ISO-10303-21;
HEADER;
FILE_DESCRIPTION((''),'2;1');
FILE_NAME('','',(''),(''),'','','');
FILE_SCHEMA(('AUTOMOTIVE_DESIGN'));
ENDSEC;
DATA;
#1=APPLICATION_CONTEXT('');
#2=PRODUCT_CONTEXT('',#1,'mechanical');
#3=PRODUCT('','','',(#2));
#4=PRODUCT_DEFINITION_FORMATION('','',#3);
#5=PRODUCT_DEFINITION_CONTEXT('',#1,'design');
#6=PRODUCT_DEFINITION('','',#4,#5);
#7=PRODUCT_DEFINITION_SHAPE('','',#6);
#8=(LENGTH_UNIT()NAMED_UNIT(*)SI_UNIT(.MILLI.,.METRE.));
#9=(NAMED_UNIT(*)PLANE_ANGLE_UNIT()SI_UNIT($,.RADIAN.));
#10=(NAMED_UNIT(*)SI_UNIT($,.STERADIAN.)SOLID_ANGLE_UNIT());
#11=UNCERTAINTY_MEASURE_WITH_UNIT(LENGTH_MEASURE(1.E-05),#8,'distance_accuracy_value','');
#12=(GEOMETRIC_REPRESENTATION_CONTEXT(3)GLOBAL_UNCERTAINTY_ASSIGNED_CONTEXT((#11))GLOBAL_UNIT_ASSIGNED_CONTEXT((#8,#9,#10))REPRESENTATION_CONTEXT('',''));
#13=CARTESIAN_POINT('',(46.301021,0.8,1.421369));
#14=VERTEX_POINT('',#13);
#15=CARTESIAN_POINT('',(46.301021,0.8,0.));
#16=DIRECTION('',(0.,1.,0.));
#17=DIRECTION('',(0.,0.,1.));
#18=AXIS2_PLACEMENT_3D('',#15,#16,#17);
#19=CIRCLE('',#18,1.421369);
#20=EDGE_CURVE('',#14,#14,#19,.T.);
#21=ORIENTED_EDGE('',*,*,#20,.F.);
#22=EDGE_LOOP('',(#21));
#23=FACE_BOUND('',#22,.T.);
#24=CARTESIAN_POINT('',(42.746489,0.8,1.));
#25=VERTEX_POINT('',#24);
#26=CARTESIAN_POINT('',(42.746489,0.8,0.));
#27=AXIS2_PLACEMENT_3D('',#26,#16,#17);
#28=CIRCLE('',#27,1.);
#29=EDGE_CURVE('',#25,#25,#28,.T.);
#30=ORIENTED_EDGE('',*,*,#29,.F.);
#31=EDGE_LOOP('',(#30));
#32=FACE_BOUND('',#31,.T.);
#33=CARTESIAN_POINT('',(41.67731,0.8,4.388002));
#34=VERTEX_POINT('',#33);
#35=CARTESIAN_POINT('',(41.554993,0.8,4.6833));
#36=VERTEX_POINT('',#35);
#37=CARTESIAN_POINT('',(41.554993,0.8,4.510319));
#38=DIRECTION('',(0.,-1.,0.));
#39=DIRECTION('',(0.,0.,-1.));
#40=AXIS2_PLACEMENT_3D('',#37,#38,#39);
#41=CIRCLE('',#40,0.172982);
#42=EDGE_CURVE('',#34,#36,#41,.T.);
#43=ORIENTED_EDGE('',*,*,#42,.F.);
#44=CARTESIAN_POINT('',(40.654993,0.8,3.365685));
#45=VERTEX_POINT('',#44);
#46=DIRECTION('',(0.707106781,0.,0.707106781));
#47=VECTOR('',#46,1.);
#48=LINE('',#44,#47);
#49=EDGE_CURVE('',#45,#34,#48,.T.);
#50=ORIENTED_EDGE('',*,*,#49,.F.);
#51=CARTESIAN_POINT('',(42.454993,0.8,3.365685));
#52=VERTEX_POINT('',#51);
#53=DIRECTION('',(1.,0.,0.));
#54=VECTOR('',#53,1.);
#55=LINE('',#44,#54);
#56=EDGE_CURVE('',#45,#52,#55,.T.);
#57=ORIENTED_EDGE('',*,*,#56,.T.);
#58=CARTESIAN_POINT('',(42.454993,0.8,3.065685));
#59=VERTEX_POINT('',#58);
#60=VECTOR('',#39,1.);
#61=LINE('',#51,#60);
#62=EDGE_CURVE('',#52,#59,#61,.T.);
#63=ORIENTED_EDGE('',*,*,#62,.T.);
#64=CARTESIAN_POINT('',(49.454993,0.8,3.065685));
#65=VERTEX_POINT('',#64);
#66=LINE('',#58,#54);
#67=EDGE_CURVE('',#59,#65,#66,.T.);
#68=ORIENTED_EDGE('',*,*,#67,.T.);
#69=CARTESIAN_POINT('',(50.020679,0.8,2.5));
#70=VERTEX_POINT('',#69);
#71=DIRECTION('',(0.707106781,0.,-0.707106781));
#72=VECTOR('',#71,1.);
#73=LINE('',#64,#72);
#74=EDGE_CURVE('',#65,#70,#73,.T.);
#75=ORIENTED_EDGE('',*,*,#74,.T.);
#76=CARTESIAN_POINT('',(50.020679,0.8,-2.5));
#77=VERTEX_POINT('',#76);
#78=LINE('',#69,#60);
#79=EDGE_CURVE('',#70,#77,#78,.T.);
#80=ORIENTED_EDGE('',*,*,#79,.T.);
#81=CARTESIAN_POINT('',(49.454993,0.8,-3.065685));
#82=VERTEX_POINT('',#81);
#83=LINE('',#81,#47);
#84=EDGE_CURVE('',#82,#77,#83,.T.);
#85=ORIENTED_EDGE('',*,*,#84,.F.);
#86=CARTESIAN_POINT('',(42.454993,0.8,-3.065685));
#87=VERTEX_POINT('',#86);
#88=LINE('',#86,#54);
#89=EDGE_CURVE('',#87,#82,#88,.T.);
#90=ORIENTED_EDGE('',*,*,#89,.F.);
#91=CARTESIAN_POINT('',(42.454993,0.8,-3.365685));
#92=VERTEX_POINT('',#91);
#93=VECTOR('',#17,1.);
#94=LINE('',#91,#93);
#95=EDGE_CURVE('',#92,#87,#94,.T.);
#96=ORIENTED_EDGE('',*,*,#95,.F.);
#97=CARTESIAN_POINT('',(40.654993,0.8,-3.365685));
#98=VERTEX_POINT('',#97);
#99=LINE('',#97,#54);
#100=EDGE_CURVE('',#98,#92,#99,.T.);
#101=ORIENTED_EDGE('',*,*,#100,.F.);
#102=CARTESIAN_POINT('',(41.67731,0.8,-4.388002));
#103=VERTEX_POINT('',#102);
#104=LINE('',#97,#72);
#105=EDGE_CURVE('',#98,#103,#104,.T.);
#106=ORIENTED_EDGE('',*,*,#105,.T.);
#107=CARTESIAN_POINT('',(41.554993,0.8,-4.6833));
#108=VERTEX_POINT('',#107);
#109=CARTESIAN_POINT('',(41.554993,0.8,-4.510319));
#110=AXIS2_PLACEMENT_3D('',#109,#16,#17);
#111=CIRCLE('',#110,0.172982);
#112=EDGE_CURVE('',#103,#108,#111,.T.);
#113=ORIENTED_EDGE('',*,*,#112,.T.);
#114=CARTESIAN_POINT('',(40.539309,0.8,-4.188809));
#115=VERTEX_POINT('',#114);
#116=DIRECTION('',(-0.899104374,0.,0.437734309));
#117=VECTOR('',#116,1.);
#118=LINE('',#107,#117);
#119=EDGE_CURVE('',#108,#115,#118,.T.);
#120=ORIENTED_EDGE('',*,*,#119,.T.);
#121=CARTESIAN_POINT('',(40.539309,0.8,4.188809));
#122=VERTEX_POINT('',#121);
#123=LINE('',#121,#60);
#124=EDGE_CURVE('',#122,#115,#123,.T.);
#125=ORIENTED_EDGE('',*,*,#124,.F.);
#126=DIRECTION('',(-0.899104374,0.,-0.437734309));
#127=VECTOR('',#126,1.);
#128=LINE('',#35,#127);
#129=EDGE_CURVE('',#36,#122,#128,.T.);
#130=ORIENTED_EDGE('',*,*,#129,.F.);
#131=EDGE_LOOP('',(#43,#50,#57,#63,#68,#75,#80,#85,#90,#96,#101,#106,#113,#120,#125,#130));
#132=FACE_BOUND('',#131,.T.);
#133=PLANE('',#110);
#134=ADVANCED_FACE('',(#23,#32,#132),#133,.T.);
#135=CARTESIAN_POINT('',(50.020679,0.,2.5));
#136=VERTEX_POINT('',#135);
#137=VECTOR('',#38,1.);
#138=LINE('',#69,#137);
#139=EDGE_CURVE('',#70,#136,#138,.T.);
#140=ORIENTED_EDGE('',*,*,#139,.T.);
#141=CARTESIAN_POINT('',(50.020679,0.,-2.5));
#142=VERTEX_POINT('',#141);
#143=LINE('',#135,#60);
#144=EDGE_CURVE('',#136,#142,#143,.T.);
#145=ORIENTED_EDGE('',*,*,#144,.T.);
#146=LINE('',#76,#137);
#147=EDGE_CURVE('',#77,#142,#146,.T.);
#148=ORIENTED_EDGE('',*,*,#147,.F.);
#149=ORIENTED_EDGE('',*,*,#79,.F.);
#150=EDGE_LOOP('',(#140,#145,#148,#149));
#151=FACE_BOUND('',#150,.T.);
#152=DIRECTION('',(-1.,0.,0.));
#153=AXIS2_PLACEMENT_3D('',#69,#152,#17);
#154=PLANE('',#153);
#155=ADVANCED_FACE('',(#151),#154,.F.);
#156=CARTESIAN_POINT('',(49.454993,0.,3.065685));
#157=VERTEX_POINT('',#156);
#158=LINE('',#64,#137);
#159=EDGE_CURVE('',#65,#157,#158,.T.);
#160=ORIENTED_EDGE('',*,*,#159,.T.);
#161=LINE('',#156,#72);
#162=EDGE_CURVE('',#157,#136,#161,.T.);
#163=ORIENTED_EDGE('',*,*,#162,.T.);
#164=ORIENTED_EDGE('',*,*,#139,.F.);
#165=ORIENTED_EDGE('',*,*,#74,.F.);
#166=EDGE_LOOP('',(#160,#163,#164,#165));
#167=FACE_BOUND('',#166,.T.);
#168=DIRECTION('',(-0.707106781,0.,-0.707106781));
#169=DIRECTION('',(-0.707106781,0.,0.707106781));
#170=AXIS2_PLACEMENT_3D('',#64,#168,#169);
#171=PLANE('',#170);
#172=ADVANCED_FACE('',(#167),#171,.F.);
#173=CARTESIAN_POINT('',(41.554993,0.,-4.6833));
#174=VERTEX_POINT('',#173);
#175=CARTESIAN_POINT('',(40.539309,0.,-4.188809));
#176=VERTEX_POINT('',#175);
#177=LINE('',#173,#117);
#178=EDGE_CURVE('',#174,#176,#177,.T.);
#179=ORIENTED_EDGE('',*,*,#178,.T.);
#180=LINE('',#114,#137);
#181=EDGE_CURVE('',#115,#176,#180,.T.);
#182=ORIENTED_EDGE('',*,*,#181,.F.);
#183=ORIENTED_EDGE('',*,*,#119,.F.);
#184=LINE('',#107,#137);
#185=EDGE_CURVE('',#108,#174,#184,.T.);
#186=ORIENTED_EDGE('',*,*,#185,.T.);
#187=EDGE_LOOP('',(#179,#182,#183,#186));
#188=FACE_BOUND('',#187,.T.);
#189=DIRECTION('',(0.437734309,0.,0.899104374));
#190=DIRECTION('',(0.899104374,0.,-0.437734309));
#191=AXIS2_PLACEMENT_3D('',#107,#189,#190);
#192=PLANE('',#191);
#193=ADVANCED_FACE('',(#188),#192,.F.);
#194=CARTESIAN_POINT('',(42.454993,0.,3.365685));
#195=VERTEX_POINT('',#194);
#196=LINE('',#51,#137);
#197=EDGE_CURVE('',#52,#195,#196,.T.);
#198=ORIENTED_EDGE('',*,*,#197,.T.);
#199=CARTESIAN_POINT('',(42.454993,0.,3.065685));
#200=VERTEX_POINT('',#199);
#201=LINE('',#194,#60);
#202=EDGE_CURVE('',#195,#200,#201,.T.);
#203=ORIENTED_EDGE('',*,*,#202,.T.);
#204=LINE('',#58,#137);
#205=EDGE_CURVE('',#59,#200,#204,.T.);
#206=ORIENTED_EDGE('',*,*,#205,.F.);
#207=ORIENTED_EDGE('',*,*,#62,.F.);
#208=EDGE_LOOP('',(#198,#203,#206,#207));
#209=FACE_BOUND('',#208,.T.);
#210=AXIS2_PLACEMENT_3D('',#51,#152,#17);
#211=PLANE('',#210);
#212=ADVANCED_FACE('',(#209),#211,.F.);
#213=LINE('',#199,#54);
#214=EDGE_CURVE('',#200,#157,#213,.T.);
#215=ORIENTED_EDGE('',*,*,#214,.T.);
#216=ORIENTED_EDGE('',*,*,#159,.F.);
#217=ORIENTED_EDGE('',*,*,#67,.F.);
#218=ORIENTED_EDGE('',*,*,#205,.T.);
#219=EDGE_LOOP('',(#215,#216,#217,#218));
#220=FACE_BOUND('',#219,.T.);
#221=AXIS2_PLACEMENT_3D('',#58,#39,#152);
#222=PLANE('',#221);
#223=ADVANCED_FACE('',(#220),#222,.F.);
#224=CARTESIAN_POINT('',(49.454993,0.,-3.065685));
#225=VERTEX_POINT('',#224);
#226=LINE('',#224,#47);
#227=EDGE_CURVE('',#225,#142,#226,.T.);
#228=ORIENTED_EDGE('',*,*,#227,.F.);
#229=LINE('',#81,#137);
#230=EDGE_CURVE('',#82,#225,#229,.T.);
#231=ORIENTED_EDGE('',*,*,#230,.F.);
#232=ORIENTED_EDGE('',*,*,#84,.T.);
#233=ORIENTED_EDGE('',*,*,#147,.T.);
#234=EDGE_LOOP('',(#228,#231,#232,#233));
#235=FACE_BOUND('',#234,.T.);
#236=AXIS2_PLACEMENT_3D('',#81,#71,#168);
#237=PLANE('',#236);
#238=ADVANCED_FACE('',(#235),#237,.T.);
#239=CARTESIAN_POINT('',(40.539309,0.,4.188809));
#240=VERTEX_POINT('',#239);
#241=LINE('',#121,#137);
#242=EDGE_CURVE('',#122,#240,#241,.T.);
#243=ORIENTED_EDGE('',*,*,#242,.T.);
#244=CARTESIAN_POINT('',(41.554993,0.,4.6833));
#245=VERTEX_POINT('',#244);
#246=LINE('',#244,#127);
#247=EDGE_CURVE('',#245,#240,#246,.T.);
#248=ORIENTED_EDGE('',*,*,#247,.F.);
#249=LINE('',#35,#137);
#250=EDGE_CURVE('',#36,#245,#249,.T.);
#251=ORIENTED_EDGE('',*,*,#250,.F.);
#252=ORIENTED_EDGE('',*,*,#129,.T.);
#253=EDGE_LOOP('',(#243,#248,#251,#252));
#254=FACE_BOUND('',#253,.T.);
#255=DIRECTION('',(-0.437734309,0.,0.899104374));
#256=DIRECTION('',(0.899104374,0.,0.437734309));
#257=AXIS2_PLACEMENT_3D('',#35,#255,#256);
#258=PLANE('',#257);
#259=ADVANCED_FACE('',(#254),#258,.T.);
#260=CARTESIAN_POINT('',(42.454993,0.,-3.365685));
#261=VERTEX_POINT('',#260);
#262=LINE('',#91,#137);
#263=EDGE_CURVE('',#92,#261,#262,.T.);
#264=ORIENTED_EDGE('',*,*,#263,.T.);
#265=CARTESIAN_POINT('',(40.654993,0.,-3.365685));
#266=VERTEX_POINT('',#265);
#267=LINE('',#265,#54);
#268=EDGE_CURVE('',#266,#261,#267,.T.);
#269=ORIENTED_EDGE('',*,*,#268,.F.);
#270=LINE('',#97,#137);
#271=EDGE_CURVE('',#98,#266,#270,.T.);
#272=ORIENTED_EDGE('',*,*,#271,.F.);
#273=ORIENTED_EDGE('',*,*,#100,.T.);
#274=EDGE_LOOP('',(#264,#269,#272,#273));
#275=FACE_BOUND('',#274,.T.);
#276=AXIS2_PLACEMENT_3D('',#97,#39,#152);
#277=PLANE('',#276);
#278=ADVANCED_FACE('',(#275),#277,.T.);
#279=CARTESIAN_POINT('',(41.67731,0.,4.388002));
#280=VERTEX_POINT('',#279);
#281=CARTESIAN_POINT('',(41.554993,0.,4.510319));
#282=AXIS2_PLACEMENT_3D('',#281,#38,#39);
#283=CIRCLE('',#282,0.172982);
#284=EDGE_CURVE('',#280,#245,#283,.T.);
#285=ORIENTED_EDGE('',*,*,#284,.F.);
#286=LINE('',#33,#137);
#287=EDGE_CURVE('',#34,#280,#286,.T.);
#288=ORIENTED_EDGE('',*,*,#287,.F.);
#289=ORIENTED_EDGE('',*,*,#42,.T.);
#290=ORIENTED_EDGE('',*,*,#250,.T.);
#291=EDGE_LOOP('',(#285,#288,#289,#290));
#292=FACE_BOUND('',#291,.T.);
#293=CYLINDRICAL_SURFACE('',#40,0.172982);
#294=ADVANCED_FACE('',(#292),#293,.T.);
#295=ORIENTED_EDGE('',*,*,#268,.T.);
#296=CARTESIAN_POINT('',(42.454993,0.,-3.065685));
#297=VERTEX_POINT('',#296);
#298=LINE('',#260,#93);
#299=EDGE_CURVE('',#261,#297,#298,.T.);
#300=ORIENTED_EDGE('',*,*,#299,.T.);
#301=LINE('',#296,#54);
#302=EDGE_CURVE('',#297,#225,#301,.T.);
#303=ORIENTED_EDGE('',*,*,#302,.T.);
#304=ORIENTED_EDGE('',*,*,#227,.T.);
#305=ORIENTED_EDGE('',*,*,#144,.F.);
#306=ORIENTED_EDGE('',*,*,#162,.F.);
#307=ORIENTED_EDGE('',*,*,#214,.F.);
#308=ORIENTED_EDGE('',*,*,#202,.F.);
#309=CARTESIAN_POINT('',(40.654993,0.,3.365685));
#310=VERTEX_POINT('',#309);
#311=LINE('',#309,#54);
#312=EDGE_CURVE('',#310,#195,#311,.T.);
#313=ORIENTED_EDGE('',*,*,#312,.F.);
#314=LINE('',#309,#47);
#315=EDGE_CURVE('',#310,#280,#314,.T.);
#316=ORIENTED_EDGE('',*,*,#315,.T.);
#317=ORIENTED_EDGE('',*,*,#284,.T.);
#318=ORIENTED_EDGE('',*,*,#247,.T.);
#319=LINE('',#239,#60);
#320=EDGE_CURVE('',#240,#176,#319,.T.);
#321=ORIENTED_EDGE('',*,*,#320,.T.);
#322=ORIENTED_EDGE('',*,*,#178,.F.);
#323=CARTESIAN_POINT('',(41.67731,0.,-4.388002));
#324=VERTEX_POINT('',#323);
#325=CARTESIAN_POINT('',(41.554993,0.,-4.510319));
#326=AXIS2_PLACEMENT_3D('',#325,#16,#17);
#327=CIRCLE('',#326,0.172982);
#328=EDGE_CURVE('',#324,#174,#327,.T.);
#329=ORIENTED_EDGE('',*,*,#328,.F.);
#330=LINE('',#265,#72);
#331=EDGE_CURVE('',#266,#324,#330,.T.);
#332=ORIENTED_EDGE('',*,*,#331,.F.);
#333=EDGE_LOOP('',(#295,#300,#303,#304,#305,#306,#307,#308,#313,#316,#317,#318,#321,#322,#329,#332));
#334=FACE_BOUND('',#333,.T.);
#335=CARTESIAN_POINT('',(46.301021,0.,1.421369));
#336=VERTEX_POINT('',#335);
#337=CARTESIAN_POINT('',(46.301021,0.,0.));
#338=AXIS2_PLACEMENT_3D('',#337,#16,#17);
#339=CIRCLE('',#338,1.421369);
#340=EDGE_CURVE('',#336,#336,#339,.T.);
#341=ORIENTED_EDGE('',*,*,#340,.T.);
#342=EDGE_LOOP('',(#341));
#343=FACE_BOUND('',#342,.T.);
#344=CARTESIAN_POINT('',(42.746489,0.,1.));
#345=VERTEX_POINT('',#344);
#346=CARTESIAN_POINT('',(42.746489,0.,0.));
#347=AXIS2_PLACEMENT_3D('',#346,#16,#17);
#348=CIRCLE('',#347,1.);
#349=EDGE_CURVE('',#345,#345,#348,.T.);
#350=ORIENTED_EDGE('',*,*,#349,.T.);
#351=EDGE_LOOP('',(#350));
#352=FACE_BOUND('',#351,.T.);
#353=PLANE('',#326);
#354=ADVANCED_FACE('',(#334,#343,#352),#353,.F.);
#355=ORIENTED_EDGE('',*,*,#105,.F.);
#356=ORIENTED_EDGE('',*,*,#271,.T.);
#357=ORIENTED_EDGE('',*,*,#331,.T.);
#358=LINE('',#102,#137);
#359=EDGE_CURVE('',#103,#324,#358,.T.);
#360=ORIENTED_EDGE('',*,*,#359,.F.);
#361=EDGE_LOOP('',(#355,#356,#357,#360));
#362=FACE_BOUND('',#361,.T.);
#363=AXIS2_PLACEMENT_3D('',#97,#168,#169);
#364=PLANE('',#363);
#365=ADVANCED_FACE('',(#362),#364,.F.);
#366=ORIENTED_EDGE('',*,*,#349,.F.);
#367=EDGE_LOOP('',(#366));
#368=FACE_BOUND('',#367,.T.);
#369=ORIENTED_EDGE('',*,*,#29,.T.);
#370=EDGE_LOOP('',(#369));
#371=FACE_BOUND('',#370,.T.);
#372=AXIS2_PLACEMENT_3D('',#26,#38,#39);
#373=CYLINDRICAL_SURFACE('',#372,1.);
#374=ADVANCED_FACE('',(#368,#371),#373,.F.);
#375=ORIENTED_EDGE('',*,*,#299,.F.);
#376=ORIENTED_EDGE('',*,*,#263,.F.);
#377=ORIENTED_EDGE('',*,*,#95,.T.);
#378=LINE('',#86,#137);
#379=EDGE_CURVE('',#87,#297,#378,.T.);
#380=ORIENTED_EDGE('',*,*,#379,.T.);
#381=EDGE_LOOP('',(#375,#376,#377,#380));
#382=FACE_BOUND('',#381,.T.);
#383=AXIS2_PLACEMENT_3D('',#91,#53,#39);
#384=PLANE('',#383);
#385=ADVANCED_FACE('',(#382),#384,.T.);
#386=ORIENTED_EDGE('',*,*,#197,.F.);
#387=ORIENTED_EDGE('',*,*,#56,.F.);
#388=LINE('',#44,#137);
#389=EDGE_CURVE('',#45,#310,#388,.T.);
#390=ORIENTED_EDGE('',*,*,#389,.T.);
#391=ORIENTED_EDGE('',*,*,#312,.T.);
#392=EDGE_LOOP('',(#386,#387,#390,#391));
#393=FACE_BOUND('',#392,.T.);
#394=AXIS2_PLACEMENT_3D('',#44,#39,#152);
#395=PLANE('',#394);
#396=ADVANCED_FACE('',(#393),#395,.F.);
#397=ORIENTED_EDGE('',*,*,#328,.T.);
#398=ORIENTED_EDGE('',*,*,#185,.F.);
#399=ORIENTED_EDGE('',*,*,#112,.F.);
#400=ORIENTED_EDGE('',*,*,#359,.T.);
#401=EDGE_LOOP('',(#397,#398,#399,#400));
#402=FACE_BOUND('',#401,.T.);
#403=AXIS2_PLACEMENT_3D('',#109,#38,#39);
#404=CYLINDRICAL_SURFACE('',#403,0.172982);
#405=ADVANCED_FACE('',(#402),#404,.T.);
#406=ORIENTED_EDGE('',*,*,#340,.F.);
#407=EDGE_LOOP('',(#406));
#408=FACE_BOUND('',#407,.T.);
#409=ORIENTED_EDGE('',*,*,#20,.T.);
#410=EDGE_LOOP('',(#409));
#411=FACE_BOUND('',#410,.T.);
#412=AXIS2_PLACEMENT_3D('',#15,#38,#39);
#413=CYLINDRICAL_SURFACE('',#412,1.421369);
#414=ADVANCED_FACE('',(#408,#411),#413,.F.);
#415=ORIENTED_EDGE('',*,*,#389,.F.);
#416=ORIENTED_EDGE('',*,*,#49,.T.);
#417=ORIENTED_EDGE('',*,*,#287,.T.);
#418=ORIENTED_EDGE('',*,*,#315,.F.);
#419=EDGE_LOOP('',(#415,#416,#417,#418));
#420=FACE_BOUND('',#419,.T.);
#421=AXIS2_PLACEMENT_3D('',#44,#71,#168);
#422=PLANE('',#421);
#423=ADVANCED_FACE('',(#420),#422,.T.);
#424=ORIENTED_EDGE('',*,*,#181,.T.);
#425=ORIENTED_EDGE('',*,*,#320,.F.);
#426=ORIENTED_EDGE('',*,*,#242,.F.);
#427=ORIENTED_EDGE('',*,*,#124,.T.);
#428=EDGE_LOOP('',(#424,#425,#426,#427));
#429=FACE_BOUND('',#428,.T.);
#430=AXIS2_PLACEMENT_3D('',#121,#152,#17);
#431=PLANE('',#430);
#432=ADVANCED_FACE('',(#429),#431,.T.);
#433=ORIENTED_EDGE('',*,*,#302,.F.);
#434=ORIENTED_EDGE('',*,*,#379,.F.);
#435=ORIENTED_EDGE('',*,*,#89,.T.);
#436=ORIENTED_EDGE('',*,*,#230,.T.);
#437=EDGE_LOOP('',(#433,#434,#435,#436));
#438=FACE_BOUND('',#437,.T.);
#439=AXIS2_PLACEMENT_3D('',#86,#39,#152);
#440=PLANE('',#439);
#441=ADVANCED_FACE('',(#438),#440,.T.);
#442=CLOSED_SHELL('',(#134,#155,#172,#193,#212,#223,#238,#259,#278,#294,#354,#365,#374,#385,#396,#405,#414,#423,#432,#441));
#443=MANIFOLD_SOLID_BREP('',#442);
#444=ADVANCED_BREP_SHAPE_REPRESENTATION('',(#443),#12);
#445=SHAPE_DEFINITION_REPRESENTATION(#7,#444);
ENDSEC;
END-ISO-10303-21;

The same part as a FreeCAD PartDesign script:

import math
import FreeCAD as App
import Part
import Sketcher
from FreeCAD import Vector

doc = App.newDocument("Part")
body = doc.addObject("PartDesign::Body", "Body")

sketch1 = doc.addObject("Sketcher::SketchObject", "Sketch")
body.addObject(sketch1)
sketch1.AttachmentSupport = (doc.XZ_Plane, [""])
sketch1.MapMode = "FlatFace"
sketch1.addGeometry([
    Part.LineSegment(Vector(40.65, 3.37, 0), Vector(42.45, 3.37, 0)),
    Part.LineSegment(Vector(42.45, 3.37, 0), Vector(42.45, 3.07, 0)),
    Part.LineSegment(Vector(42.45, 3.07, 0), Vector(49.45, 3.07, 0)),
    Part.LineSegment(Vector(49.45, 3.07, 0), Vector(50.02, 2.5, 0)),
    Part.LineSegment(Vector(50.02, 2.5, 0), Vector(50.02, -2.5, 0)),
    Part.LineSegment(Vector(50.02, -2.5, 0), Vector(49.45, -3.07, 0)),
    Part.LineSegment(Vector(49.45, -3.07, 0), Vector(42.45, -3.07, 0)),
    Part.LineSegment(Vector(42.45, -3.07, 0), Vector(42.45, -3.37, 0)),
    Part.LineSegment(Vector(42.45, -3.37, 0), Vector(40.65, -3.37, 0)),
    Part.LineSegment(Vector(40.65, -3.37, 0), Vector(41.68, -4.39, 0)),
    Part.ArcOfCircle(Part.Circle(Vector(41.55, -4.51, 0), Vector(0, 0, 1), 0.17), math.radians(-90), math.radians(45)),
    Part.LineSegment(Vector(41.55, -4.68, 0), Vector(40.54, -4.19, 0)),
    Part.LineSegment(Vector(40.54, -4.19, 0), Vector(40.54, 4.19, 0)),
    Part.LineSegment(Vector(40.54, 4.19, 0), Vector(41.55, 4.68, 0)),
    Part.ArcOfCircle(Part.Circle(Vector(41.55, 4.51, 0), Vector(0, 0, 1), 0.17), math.radians(-45), math.radians(90)),
    Part.LineSegment(Vector(41.68, 4.39, 0), Vector(40.65, 3.37, 0)),
    Part.Circle(Vector(42.75, 0, 0), Vector(0, 0, 1), 1),
    Part.Circle(Vector(46.3, 0, 0), Vector(0, 0, 1), 1.42),
], False)
sketch1.addConstraint([
    Sketcher.Constraint("Coincident", 0, 2, 1, 1),
    Sketcher.Constraint("Coincident", 1, 2, 2, 1),
    Sketcher.Constraint("Coincident", 2, 2, 3, 1),
    Sketcher.Constraint("Coincident", 3, 2, 4, 1),
    Sketcher.Constraint("Coincident", 4, 2, 5, 1),
    Sketcher.Constraint("Coincident", 5, 2, 6, 1),
    Sketcher.Constraint("Coincident", 6, 2, 7, 1),
    Sketcher.Constraint("Coincident", 7, 2, 8, 1),
    Sketcher.Constraint("Coincident", 8, 2, 9, 1),
    Sketcher.Constraint("Tangent", 9, 2, 10, 2),
    Sketcher.Constraint("Coincident", 10, 1, 11, 1),
    Sketcher.Constraint("Coincident", 11, 2, 12, 1),
    Sketcher.Constraint("Coincident", 12, 2, 13, 1),
    Sketcher.Constraint("Coincident", 13, 2, 14, 2),
    Sketcher.Constraint("Tangent", 14, 1, 15, 1),
    Sketcher.Constraint("Coincident", 15, 2, 0, 1),
    Sketcher.Constraint("Horizontal", 0),
    Sketcher.Constraint("Vertical", 1),
    Sketcher.Constraint("Horizontal", 2),
    Sketcher.Constraint("Vertical", 4),
    Sketcher.Constraint("Horizontal", 6),
    Sketcher.Constraint("Vertical", 7),
    Sketcher.Constraint("Horizontal", 8),
    Sketcher.Constraint("Vertical", 12),
    Sketcher.Constraint("Equal", 10, 14),
    Sketcher.Constraint("Symmetric", 10, 3, 14, 3, -1),
    Sketcher.Constraint("Symmetric", 2, 2, 5, 2, -1),
    Sketcher.Constraint("Symmetric", 0, 2, 7, 2, -1),
    Sketcher.Constraint("PointOnObject", 16, 3, -1),
    Sketcher.Constraint("PointOnObject", 17, 3, -1),
    Sketcher.Constraint("Perpendicular", 3, 5),
    Sketcher.Constraint("Perpendicular", 5, 9),
    Sketcher.Constraint("Perpendicular", 9, 15),
    Sketcher.Constraint("Vertical", 14, 3, 10, 1),
    Sketcher.Constraint("Vertical", 10, 1, 13, 2),
    Sketcher.Constraint("Vertical", 9, 2, 14, 1),
    Sketcher.Constraint("Equal", 11, 13),
    Sketcher.Constraint("Diameter", 16, 2.0),
    Sketcher.Constraint("DistanceX", 2, 1, 2, 2, 7.0),
    Sketcher.Constraint("DistanceY", 4, 2, 4, 1, 5.0),
    Sketcher.Constraint("DistanceX", 0, 1, 0, 2, 1.8),
    Sketcher.Constraint("DistanceY", 1, 2, 1, 1, 0.3),
    Sketcher.Constraint("Distance", 3, 0.8),
    Sketcher.Constraint("DistanceX", 14, 3, 0, 2, 0.9),
    Sketcher.Constraint("Radius", 10, 0.172982),
    Sketcher.Constraint("Diameter", 17, 2.842737),
    Sketcher.Constraint("DistanceX", 11, 2, 9, 2, 1.138001),
    Sketcher.Constraint("Distance", 11, 1.129662),
    Sketcher.Constraint("DistanceX", -1, 1, 16, 3, 42.746489),
    Sketcher.Constraint("DistanceX", -1, 1, 17, 3, 46.301021),
    Sketcher.Constraint("DistanceX", -1, 1, 3, 2, 50.020679),
])
pad1 = doc.addObject("PartDesign::Pad", "Pad")
body.addObject(pad1)
pad1.Profile = sketch1
pad1.Length = 0.8
pad1.Reversed = True

doc.recompute()
